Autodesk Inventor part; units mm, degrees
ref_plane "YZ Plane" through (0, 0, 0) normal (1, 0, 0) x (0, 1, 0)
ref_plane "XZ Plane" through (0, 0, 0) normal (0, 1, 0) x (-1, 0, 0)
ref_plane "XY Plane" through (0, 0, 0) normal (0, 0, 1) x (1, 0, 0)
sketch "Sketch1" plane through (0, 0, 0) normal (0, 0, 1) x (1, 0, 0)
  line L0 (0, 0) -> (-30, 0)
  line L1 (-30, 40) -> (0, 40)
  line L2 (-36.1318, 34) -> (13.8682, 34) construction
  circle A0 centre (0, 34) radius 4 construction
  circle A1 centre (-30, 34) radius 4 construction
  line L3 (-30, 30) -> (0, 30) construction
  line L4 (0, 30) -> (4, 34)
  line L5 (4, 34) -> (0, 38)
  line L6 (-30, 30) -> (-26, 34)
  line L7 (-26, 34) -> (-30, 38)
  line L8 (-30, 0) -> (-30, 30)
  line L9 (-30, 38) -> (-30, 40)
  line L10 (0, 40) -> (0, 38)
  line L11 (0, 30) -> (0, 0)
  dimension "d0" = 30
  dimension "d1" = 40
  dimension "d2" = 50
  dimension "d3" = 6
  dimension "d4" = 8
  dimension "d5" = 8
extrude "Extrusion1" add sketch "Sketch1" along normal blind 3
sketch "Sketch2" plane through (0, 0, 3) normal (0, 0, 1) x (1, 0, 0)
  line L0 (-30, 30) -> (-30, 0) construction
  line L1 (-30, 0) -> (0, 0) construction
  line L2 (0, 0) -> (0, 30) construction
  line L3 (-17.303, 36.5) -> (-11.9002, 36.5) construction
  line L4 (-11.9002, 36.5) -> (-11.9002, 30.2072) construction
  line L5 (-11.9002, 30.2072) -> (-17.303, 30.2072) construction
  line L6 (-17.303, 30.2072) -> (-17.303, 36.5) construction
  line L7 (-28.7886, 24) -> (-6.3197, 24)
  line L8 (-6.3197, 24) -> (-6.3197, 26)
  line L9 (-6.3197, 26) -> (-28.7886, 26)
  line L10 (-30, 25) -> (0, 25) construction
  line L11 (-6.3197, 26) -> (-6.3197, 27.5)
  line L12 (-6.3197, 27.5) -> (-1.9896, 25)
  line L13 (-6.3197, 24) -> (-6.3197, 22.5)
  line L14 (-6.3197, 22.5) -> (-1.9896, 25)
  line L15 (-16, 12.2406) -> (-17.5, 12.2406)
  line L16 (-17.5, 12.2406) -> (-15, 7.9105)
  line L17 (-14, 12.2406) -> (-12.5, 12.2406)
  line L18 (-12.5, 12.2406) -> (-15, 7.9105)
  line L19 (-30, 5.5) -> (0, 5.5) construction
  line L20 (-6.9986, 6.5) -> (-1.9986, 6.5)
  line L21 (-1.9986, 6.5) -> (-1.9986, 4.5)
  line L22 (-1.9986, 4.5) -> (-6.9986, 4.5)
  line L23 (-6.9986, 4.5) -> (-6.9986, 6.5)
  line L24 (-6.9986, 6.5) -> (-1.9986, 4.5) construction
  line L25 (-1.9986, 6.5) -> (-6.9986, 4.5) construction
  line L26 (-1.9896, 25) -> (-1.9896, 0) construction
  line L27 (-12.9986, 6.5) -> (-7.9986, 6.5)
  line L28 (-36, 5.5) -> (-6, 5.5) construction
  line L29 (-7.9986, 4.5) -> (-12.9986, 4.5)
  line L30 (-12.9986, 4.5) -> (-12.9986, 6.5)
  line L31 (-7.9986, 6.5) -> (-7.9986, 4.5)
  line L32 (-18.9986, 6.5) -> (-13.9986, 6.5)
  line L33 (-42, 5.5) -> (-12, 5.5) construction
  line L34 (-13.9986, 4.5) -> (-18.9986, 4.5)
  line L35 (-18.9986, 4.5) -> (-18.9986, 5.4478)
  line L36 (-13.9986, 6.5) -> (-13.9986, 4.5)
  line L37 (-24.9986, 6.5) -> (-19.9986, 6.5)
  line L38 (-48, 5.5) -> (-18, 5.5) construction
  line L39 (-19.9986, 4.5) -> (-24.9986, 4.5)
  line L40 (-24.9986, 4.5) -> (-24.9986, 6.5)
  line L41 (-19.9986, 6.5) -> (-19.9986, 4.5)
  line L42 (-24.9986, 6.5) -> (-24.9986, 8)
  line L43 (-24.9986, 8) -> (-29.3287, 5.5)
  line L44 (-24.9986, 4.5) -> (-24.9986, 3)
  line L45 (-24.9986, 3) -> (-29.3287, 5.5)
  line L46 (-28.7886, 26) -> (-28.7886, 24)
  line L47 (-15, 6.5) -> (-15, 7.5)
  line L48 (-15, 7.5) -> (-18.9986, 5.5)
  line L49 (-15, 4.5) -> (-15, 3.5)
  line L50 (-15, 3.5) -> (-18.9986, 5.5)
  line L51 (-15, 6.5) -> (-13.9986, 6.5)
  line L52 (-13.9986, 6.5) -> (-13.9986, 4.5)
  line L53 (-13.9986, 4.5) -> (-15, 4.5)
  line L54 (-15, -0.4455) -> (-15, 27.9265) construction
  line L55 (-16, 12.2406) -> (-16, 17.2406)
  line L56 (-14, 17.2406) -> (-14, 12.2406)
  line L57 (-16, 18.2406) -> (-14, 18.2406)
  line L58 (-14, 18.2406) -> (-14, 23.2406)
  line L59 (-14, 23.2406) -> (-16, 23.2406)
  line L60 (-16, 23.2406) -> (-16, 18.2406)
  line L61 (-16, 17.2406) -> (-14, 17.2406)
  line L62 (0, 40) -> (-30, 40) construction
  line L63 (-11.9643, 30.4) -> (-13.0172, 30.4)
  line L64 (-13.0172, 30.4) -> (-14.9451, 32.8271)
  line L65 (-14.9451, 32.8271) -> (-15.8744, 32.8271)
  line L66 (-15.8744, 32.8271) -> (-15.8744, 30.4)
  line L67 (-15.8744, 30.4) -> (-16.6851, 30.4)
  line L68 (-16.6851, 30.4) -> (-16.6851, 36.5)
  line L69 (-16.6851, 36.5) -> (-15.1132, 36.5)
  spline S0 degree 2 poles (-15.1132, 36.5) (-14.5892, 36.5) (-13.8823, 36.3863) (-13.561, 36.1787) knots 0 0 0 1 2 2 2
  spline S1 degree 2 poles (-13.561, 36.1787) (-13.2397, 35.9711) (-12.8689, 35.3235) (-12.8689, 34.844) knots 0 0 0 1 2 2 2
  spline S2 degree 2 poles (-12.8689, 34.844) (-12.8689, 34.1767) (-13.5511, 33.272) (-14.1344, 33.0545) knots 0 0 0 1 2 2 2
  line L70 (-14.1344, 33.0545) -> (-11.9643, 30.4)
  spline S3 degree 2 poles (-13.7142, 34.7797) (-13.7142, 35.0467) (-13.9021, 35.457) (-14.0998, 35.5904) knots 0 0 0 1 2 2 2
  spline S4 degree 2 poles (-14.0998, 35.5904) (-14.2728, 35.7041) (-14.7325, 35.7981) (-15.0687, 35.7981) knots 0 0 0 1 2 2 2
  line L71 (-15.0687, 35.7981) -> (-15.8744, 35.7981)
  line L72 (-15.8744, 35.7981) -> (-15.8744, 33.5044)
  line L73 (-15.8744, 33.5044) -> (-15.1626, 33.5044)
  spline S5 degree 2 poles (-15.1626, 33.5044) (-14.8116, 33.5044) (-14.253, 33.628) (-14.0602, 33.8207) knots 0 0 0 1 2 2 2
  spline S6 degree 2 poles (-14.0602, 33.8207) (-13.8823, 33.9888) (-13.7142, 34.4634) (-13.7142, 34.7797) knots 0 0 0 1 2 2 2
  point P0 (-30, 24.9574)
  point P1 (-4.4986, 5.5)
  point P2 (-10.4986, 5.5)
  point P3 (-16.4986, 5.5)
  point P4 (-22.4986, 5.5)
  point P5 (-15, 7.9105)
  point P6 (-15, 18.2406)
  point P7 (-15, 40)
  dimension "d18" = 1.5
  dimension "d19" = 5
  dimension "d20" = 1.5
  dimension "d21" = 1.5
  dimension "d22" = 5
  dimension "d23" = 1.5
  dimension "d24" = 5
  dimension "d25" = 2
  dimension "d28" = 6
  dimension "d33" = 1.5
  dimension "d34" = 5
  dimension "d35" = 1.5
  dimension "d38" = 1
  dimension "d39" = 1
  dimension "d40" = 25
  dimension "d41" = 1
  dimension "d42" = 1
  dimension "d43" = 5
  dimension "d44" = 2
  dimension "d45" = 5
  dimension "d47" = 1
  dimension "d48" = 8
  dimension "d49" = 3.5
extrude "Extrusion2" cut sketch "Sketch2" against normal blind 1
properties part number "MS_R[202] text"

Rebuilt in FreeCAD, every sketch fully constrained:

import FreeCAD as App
import Part
import Sketcher

V = App.Vector
Q = App.Units.Quantity


def add_polygon(sketch, points):
    """Adds a closed chain of lines whose ends are joined by coincident constraints."""
    first, n = sketch.GeometryCount, len(points)
    for a, b in zip(points, points[1:] + points[:1]):
        sketch.addGeometry(Part.LineSegment(App.Vector(*a, 0), App.Vector(*b, 0)), False)
    for i in range(n):
        sketch.addConstraint(Sketcher.Constraint("Coincident", first + i, 2, first + (i + 1) % n, 1))

doc = App.newDocument("Part")
body = doc.addObject("PartDesign::Body", "Body")

# Sketch on XY plane
sketch1 = body.newObject("Sketcher::SketchObject", "Sketch")
sketch1.AttachmentSupport = (doc.getObject("XY_Plane"), [""])
sketch1.MapMode = "FlatFace"
add_polygon(sketch1, [(-30, 0), (0, 0), (0, 30), (4, 34), (0, 38), (0, 40), (-30, 40), (-30, 38), (-26, 34), (-30, 30)])  # lines 0-9
sketch1.addConstraint([
    Sketcher.Constraint("Horizontal", 0),
    Sketcher.Constraint("Vertical", 1),
    Sketcher.Constraint("Vertical", 4),
    Sketcher.Constraint("Horizontal", 5),
    Sketcher.Constraint("Vertical", 6),
    Sketcher.Constraint("Vertical", 9),
    Sketcher.Constraint("Coincident", 0, 2, -1, 1),
    Sketcher.Constraint("PointOnObject", 3, 2, -2),
    Sketcher.Constraint("Perpendicular", 2, 3),
    Sketcher.Constraint("Parallel", 3, 7),
    Sketcher.Constraint("Perpendicular", 7, 8),
    Sketcher.Constraint("Horizontal", 3, 2, 6, 2),
    Sketcher.Constraint("Horizontal", 2, 2, 7, 2),
    Sketcher.Constraint("Horizontal", 1, 2, 8, 2),
    Sketcher.Constraint("Equal", 5, 1),
    Sketcher.Constraint("Equal", 2, 3),
    Sketcher.Constraint("DistanceX", 0, 1, 0, 2, 30.0),
    Sketcher.Constraint("DistanceY", -1, 1, 4, 2, 40.0),
    Sketcher.Constraint("DistanceY", 1, 2, 3, 2, 8.0),
])
pad1 = body.newObject("PartDesign::Pad", "Pad")
pad1.Profile = sketch1
pad1.Length = 3

# Sketch on XY plane
sketch2 = body.newObject("Sketcher::SketchObject", "Sketch001")
sketch2.AttachmentSupport = (doc.getObject("XY_Plane"), [""])
sketch2.MapMode = "FlatFace"
sketch2.AttachmentOffset = App.Placement(V(0, 0, 3), App.Rotation())
add_polygon(sketch2, [(-28.7886, 26), (-28.7886, 24), (-6.3197, 24), (-6.3197, 22.5), (-1.9896, 25), (-6.3197, 27.5), (-6.3197, 26)])  # lines 0-6
add_polygon(sketch2, [(-16, 17.2406), (-16, 12.2406), (-17.5, 12.2406), (-15, 7.9105), (-12.5, 12.2406), (-14, 12.2406), (-14, 17.2406)])  # lines 7-13
add_polygon(sketch2, [(-1.9986, 6.5), (-6.9986, 6.5), (-6.9986, 4.5), (-1.9986, 4.5)])  # lines 14-17
add_polygon(sketch2, [(-7.9986, 6.5), (-12.9986, 6.5), (-12.9986, 4.5), (-7.9986, 4.5)])  # lines 18-21
add_polygon(sketch2, [(-13.9986, 6.5), (-15, 6.5), (-15, 7.5), (-18.9986, 5.5), (-15, 3.5), (-15, 4.5), (-13.9986, 4.5)])  # lines 22-28
add_polygon(sketch2, [(-19.9986, 6.5), (-24.9986, 6.5), (-24.9986, 8), (-29.3287, 5.5), (-24.9986, 3), (-24.9986, 4.5), (-19.9986, 4.5)])  # lines 29-35
add_polygon(sketch2, [(-16, 23.2406), (-16, 18.2406), (-14, 18.2406), (-14, 23.2406)])  # lines 36-39
sketch2.addGeometry(Part.LineSegment(V(-13.0172, 30.4, 0), V(-11.9643, 30.4, 0)), False)  # 40
sketch2.addGeometry(Part.LineSegment(V(-11.9643, 30.4, 0), V(-14.1344, 33.0545, 0)), False)  # 41
sketch2.addGeometry(Part.BSplineCurve([V(-12.8689, 34.844, 0), V(-12.8689, 34.1767, 0), V(-13.5511, 33.272, 0), V(-14.1344, 33.0545, 0)], [3, 1, 3], [0, 1, 2], False, 2, [1, 1, 1, 1], False), False)  # 42
sketch2.addGeometry(Part.BSplineCurve([V(-13.561, 36.1787, 0), V(-13.2397, 35.9711, 0), V(-12.8689, 35.3235, 0), V(-12.8689, 34.844, 0)], [3, 1, 3], [0, 1, 2], False, 2, [1, 1, 1, 1], False), False)  # 43
sketch2.addGeometry(Part.BSplineCurve([V(-15.1132, 36.5, 0), V(-14.5892, 36.5, 0), V(-13.8823, 36.3863, 0), V(-13.561, 36.1787, 0)], [3, 1, 3], [0, 1, 2], False, 2, [1, 1, 1, 1], False), False)  # 44
sketch2.addGeometry(Part.LineSegment(V(-15.1132, 36.5, 0), V(-16.6851, 36.5, 0)), False)  # 45
sketch2.addGeometry(Part.LineSegment(V(-16.6851, 36.5, 0), V(-16.6851, 30.4, 0)), False)  # 46
sketch2.addGeometry(Part.LineSegment(V(-16.6851, 30.4, 0), V(-15.8744, 30.4, 0)), False)  # 47
sketch2.addGeometry(Part.LineSegment(V(-15.8744, 30.4, 0), V(-15.8744, 32.8271, 0)), False)  # 48
sketch2.addGeometry(Part.LineSegment(V(-15.8744, 32.8271, 0), V(-14.9451, 32.8271, 0)), False)  # 49
sketch2.addGeometry(Part.LineSegment(V(-14.9451, 32.8271, 0), V(-13.0172, 30.4, 0)), False)  # 50
sketch2.addGeometry(Part.BSplineCurve([V(-13.7142, 34.7797, 0), V(-13.7142, 35.0467, 0), V(-13.9021, 35.457, 0), V(-14.0998, 35.5904, 0)], [3, 1, 3], [0, 1, 2], False, 2, [1, 1, 1, 1], False), False)  # 51
sketch2.addGeometry(Part.BSplineCurve([V(-14.0602, 33.8207, 0), V(-13.8823, 33.9888, 0), V(-13.7142, 34.4634, 0), V(-13.7142, 34.7797, 0)], [3, 1, 3], [0, 1, 2], False, 2, [1, 1, 1, 1], False), False)  # 52
sketch2.addGeometry(Part.BSplineCurve([V(-15.1626, 33.5044, 0), V(-14.8116, 33.5044, 0), V(-14.253, 33.628, 0), V(-14.0602, 33.8207, 0)], [3, 1, 3], [0, 1, 2], False, 2, [1, 1, 1, 1], False), False)  # 53
sketch2.addGeometry(Part.LineSegment(V(-15.1626, 33.5044, 0), V(-15.8744, 33.5044, 0)), False)  # 54
sketch2.addGeometry(Part.LineSegment(V(-15.8744, 33.5044, 0), V(-15.8744, 35.7981, 0)), False)  # 55
sketch2.addGeometry(Part.LineSegment(V(-15.8744, 35.7981, 0), V(-15.0687, 35.7981, 0)), False)  # 56
sketch2.addGeometry(Part.BSplineCurve([V(-14.0998, 35.5904, 0), V(-14.2728, 35.7041, 0), V(-14.7325, 35.7981, 0), V(-15.0687, 35.7981, 0)], [3, 1, 3], [0, 1, 2], False, 2, [1, 1, 1, 1], False), False)  # 57
sketch2.addConstraint([
    Sketcher.Constraint("Block", 42),
    Sketcher.Constraint("Block", 43),
    Sketcher.Constraint("Block", 44),
    Sketcher.Constraint("Block", 51),
    Sketcher.Constraint("Block", 52),
    Sketcher.Constraint("Block", 53),
    Sketcher.Constraint("Block", 57),
    Sketcher.Constraint("Coincident", 40, 2, 41, 1),
    Sketcher.Constraint("Coincident", 41, 2, 42, 2),
    Sketcher.Constraint("Coincident", 44, 1, 45, 1),
    Sketcher.Constraint("Coincident", 45, 2, 46, 1),
    Sketcher.Constraint("Coincident", 46, 2, 47, 1),
    Sketcher.Constraint("Coincident", 47, 2, 48, 1),
    Sketcher.Constraint("Coincident", 48, 2, 49, 1),
    Sketcher.Constraint("Coincident", 49, 2, 50, 1),
    Sketcher.Constraint("Coincident", 50, 2, 40, 1),
    Sketcher.Constraint("Coincident", 53, 1, 54, 1),
    Sketcher.Constraint("Coincident", 54, 2, 55, 1),
    Sketcher.Constraint("Coincident", 55, 2, 56, 1),
    Sketcher.Constraint("Coincident", 56, 2, 57, 2),
    Sketcher.Constraint("Vertical", 0),
    Sketcher.Constraint("Horizontal", 1),
    Sketcher.Constraint("Vertical", 2),
    Sketcher.Constraint("Vertical", 5),
    Sketcher.Constraint("Horizontal", 6),
    Sketcher.Constraint("Vertical", 7),
    Sketcher.Constraint("Horizontal", 8),
    Sketcher.Constraint("Horizontal", 11),
    Sketcher.Constraint("Vertical", 12),
    Sketcher.Constraint("Horizontal", 13),
    Sketcher.Constraint("Horizontal", 14),
    Sketcher.Constraint("Vertical", 15),
    Sketcher.Constraint("Horizontal", 16),
    Sketcher.Constraint("Vertical", 17),
    Sketcher.Constraint("Horizontal", 18),
    Sketcher.Constraint("Vertical", 19),
    Sketcher.Constraint("Horizontal", 20),
    Sketcher.Constraint("Vertical", 21),
    Sketcher.Constraint("Horizontal", 22),
    Sketcher.Constraint("Vertical", 23),
    Sketcher.Constraint("Vertical", 26),
    Sketcher.Constraint("Horizontal", 27),
    Sketcher.Constraint("Vertical", 28),
    Sketcher.Constraint("Horizontal", 29),
    Sketcher.Constraint("Vertical", 30),
    Sketcher.Constraint("Vertical", 33),
    Sketcher.Constraint("Horizontal", 34),
    Sketcher.Constraint("Vertical", 35),
    Sketcher.Constraint("Vertical", 36),
    Sketcher.Constraint("Horizontal", 37),
    Sketcher.Constraint("Vertical", 38),
    Sketcher.Constraint("Horizontal", 39),
    Sketcher.Constraint("Horizontal", 40),
    Sketcher.Constraint("Horizontal", 45),
    Sketcher.Constraint("Vertical", 46),
    Sketcher.Constraint("Horizontal", 47),
    Sketcher.Constraint("Vertical", 48),
    Sketcher.Constraint("Horizontal", 49),
    Sketcher.Constraint("Horizontal", 54),
    Sketcher.Constraint("Vertical", 55),
    Sketcher.Constraint("Horizontal", 56),
    Sketcher.Constraint("Perpendicular", 3, 9),
    Sketcher.Constraint("Perpendicular", 4, 10),
    Sketcher.Constraint("Perpendicular", 9, 31),
    Sketcher.Constraint("Perpendicular", 10, 32),
    Sketcher.Constraint("Horizontal", 8, 2, 10, 2),
    Sketcher.Constraint("Horizontal", 17, 2, 18, 2),
    Sketcher.Constraint("Horizontal", 16, 2, 19, 2),
    Sketcher.Constraint("Horizontal", 21, 2, 22, 2),
    Sketcher.Constraint("Horizontal", 20, 2, 26, 2),
    Sketcher.Constraint("Horizontal", 28, 2, 29, 2),
    Sketcher.Constraint("Horizontal", 24, 2, 31, 2),
    Sketcher.Constraint("Horizontal", 27, 2, 33, 2),
    Sketcher.Constraint("Horizontal", 40, 2, 46, 2),
    Sketcher.Constraint("Vertical", 2, 2, 4, 2),
    Sketcher.Constraint("Vertical", 9, 2, 22, 2),
    Sketcher.Constraint("Vertical", 23, 2, 25, 2),
    Sketcher.Constraint("Vertical", 30, 2, 32, 2),
    Sketcher.Constraint("Vertical", 13, 2, 36, 2),
    Sketcher.Constraint("Vertical", 12, 2, 37, 2),
    Sketcher.Constraint("Vertical", 48, 2, 54, 2),
    Sketcher.Constraint("Equal", 8, 11),
    Sketcher.Constraint("Equal", 16, 18),
    Sketcher.Constraint("Equal", 20, 29),
    Sketcher.Constraint("Equal", 39, 0),
    Sketcher.Constraint("Equal", 11, 2),
    Sketcher.Constraint("Equal", 2, 5),
    Sketcher.Constraint("Equal", 34, 7),
    Sketcher.Constraint("Equal", 0, 15),
    Sketcher.Constraint("Equal", 23, 26),
    Sketcher.Constraint("Equal", 5, 30),
    Sketcher.Constraint("Equal", 30, 33),
    Sketcher.Constraint("Equal", 12, 36),
    Sketcher.Constraint("Equal", 3, 4),
    Sketcher.Constraint("DistanceX", 13, 2, 13, 1, 2.0),
    Sketcher.Constraint("DistanceX", 14, 2, 14, 1, 5.0),
    Sketcher.Constraint("DistanceY", 23, 1, 23, 2, 1.0),
    Sketcher.Constraint("Distance", 3, 5.0),
    Sketcher.Constraint("DistanceX", 8, 2, 8, 1, 1.5),
    Sketcher.Constraint("DistanceY", -1, 1, 3, 2, 25.0),
    Sketcher.Constraint("DistanceY", -1, 1, 30, 2, 8.0),
    Sketcher.Constraint("DistanceX", 18, 2, 14, 2, 6.0),
    Sketcher.Constraint("DistanceX", 24, 2, 18, 2, 6.0),
    Sketcher.Constraint("DistanceX", 27, 2, 19, 2, 1.0),
    Sketcher.Constraint("DistanceX", 29, 2, 24, 2, 6.0),
    Sketcher.Constraint("DistanceY", 13, 2, 36, 2, 1.0),
    Sketcher.Constraint("DistanceY", 46, 2, 46, 1, 6.1),
    Sketcher.Constraint("DistanceX", 7, 2, -1, 1, 16.0),
    Sketcher.Constraint("Angle", 50, Q("-51.539 deg")),
    Sketcher.Constraint("DistanceX", 1, 1, 1, 2, 22.469),
    Sketcher.Constraint("DistanceX", 40, 1, 40, 2, 1.053),
    Sketcher.Constraint("DistanceX", 45, 2, 45, 1, 1.572),
    Sketcher.Constraint("DistanceY", 48, 1, 48, 2, 2.427),
    Sketcher.Constraint("DistanceX", 41, 2, 40, 2, 2.17),
    Sketcher.Constraint("DistanceX", 47, 2, 41, 2, 1.74),
    Sketcher.Constraint("Distance", 24, 4.471),
    Sketcher.Constraint("DistanceY", 38, 2, 41, 2, 9.814),
    Sketcher.Constraint("DistanceX", 0, 2, -1, 1, 28.7886),
])
pocket1 = body.newObject("PartDesign::Pocket", "Pocket")
pocket1.Profile = sketch2
pocket1.Length = 1

doc.recompute()
